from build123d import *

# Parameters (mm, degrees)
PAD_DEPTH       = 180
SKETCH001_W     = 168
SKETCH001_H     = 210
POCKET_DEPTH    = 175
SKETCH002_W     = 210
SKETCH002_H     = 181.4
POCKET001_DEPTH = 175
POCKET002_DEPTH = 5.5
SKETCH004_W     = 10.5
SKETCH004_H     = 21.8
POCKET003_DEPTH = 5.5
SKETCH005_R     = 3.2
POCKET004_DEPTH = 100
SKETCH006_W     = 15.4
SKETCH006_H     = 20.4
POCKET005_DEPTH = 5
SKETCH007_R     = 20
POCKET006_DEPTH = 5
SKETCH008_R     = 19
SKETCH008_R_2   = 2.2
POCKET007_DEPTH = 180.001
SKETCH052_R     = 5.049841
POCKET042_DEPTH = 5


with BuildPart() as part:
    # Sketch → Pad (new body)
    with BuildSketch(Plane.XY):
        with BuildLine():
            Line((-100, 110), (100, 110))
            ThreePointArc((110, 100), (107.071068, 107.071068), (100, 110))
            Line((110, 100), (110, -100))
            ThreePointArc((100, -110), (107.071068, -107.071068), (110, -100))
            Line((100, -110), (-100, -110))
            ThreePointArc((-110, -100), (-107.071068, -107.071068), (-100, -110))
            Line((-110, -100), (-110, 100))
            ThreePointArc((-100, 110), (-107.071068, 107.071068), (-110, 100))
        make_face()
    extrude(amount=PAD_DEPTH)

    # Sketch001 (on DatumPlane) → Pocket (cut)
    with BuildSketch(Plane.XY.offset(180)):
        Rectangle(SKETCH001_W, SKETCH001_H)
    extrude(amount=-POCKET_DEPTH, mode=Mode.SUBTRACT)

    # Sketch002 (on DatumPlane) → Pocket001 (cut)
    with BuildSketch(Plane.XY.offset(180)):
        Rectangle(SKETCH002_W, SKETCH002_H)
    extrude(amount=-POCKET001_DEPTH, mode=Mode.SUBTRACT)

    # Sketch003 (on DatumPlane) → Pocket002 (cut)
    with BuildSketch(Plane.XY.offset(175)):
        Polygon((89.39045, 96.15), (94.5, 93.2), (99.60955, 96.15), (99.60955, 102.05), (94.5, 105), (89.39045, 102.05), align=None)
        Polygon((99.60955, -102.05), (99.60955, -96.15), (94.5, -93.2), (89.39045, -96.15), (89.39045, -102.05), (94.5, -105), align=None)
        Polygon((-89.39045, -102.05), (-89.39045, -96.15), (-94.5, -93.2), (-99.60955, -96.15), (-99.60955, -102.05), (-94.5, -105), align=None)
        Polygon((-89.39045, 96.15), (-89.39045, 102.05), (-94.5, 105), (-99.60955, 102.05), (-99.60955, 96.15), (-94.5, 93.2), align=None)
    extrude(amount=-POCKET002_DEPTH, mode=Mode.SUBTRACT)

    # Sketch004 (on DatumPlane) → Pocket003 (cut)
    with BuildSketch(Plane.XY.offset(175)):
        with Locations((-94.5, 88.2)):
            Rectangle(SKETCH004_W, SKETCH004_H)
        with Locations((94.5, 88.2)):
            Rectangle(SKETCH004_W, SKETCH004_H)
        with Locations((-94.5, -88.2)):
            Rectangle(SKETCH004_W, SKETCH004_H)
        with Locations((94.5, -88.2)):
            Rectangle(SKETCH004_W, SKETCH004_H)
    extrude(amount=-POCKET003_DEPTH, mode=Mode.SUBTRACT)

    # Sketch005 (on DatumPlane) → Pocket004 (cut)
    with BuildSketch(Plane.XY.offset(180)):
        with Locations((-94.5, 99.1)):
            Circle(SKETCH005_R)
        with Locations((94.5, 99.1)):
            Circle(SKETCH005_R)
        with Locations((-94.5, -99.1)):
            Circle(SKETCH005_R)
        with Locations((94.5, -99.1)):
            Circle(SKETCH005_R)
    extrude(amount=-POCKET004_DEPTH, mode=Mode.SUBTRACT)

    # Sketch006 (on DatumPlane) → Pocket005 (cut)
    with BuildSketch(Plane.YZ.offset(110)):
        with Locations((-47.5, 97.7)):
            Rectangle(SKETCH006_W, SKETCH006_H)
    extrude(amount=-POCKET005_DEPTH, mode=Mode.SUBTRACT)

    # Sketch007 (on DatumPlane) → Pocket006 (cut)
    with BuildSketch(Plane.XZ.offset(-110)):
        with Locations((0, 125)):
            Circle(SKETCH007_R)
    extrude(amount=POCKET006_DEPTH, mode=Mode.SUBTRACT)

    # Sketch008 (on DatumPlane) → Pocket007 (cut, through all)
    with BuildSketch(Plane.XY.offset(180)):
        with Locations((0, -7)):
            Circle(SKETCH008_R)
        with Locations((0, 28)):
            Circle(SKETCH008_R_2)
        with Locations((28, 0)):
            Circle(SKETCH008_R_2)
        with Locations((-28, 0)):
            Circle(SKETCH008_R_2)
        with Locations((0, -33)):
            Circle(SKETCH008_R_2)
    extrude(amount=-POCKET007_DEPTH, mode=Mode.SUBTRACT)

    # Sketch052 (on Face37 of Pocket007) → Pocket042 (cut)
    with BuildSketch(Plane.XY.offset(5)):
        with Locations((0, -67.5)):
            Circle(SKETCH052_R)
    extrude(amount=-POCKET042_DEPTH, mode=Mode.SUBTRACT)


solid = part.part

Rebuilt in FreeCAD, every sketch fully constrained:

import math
import FreeCAD as App
import Part
import Sketcher
from FreeCAD import Vector
Q = App.Units.Quantity


def add_polygon(sketch, points):
    """Adds a closed chain of lines whose ends are joined by coincident constraints."""
    first, n = sketch.GeometryCount, len(points)
    for a, b in zip(points, points[1:] + points[:1]):
        sketch.addGeometry(Part.LineSegment(App.Vector(*a, 0), App.Vector(*b, 0)), False)
    for i in range(n):
        sketch.addConstraint(Sketcher.Constraint("Coincident", first + i, 2, first + (i + 1) % n, 1))

doc = App.newDocument("Part")
body = doc.addObject("PartDesign::Body", "Body")

# Sketch on XY plane
sketch1 = doc.addObject("Sketcher::SketchObject", "Sketch")
body.addObject(sketch1)
sketch1.AttachmentSupport = (doc.XY_Plane, [""])
sketch1.MapMode = "FlatFace"
sketch1.addGeometry([
    Part.LineSegment(Vector(100, 110, 0), Vector(-100, 110, 0)),  # 0
    Part.ArcOfCircle(Part.Circle(Vector(-100, 100, 0), Vector(0, 0, 1), 10), math.radians(90), math.radians(180)),  # 1
    Part.LineSegment(Vector(-110, 100, 0), Vector(-110, -100, 0)),  # 2
    Part.ArcOfCircle(Part.Circle(Vector(-100, -100, 0), Vector(0, 0, 1), 10), math.radians(180), math.radians(270)),  # 3
    Part.LineSegment(Vector(-100, -110, 0), Vector(100, -110, 0)),  # 4
    Part.ArcOfCircle(Part.Circle(Vector(100, -100, 0), Vector(0, 0, 1), 10), math.radians(-90), math.radians(0)),  # 5
    Part.LineSegment(Vector(110, -100, 0), Vector(110, 100, 0)),  # 6
    Part.ArcOfCircle(Part.Circle(Vector(100, 100, 0), Vector(0, 0, 1), 10), math.radians(0), math.radians(90)),  # 7
], False)
sketch1.addConstraint([
    Sketcher.Constraint("Tangent", 0, 2, 1, 1),
    Sketcher.Constraint("Tangent", 1, 2, 2, 1),
    Sketcher.Constraint("Tangent", 2, 2, 3, 1),
    Sketcher.Constraint("Tangent", 3, 2, 4, 1),
    Sketcher.Constraint("Tangent", 4, 2, 5, 1),
    Sketcher.Constraint("Tangent", 5, 2, 6, 1),
    Sketcher.Constraint("Tangent", 6, 2, 7, 1),
    Sketcher.Constraint("Tangent", 7, 2, 0, 1),
    Sketcher.Constraint("Horizontal", 0),
    Sketcher.Constraint("Vertical", 2),
    Sketcher.Constraint("Horizontal", 4),
    Sketcher.Constraint("Vertical", 6),
    Sketcher.Constraint("Equal", 1, 3),
    Sketcher.Constraint("Equal", 3, 5),
    Sketcher.Constraint("Equal", 5, 7),
    Sketcher.Constraint("Symmetric", 1, 3, 5, 3, -1, 1),
    Sketcher.Constraint("Equal", 4, 2),
    Sketcher.Constraint("Radius", 1, 9.999999),
    Sketcher.Constraint("DistanceX", 0, 2, 0, 1, 200.0),
])
pad1 = doc.addObject("PartDesign::Pad", "Pad")
body.addObject(pad1)
pad1.Profile = sketch1
pad1.Length = 180

# Sketch on XY plane
sketch2 = doc.addObject("Sketcher::SketchObject", "Sketch001")
body.addObject(sketch2)
sketch2.AttachmentSupport = (doc.XY_Plane, [""])
sketch2.MapMode = "FlatFace"
sketch2.AttachmentOffset = App.Placement(Vector(0, 0, 180), App.Rotation())
add_polygon(sketch2, [(-84, 105), (-84, -105), (84, -105), (84, 105)])  # lines 0-3
sketch2.addConstraint([
    Sketcher.Constraint("Vertical", 0),
    Sketcher.Constraint("Horizontal", 1),
    Sketcher.Constraint("Vertical", 2),
    Sketcher.Constraint("Horizontal", 3),
    Sketcher.Constraint("Symmetric", 0, 2, 2, 2, -1, 1),
    Sketcher.Constraint("DistanceX", 1, 1, 1, 2, 168.0),
    Sketcher.Constraint("DistanceY", 0, 2, 0, 1, 210.0),
])
pocket1 = doc.addObject("PartDesign::Pocket", "Pocket")
body.addObject(pocket1)
pocket1.Profile = sketch2
pocket1.Length = 175

# Sketch on XY plane
sketch3 = doc.addObject("Sketcher::SketchObject", "Sketch002")
body.addObject(sketch3)
sketch3.AttachmentSupport = (doc.XY_Plane, [""])
sketch3.MapMode = "FlatFace"
sketch3.AttachmentOffset = App.Placement(Vector(0, 0, 180), App.Rotation())
add_polygon(sketch3, [(-105, 91), (-105, -91), (105, -91), (105, 91)])  # lines 0-3
sketch3.addConstraint([
    Sketcher.Constraint("Vertical", 0),
    Sketcher.Constraint("Horizontal", 1),
    Sketcher.Constraint("Vertical", 2),
    Sketcher.Constraint("Horizontal", 3),
    Sketcher.Constraint("Symmetric", 0, 2, 2, 2, -1, 1),
    Sketcher.Constraint("DistanceX", 1, 1, 1, 2, 210.0),
    Sketcher.Constraint("DistanceY", 0, 2, 0, 1, 181.4),
])
pocket2 = doc.addObject("PartDesign::Pocket", "Pocket001")
body.addObject(pocket2)
pocket2.Profile = sketch3
pocket2.Length = 175

# Sketch on XY plane
sketch4 = doc.addObject("Sketcher::SketchObject", "Sketch003")
body.addObject(sketch4)
sketch4.AttachmentSupport = (doc.XY_Plane, [""])
sketch4.MapMode = "FlatFace"
sketch4.AttachmentOffset = App.Placement(Vector(0, 0, 175), App.Rotation())
add_polygon(sketch4, [(89, 96), (94, 93), (100, 96), (100, 102), (94, 105), (89, 102)])  # lines 0-5
add_polygon(sketch4, [(100, -102), (100, -96), (94, -93), (89, -96), (89, -102), (94, -105)])  # lines 6-11
add_polygon(sketch4, [(-89, -102), (-89, -96), (-94, -93), (-100, -96), (-100, -102), (-94, -105)])  # lines 12-17
add_polygon(sketch4, [(-89, 96), (-89, 102), (-94, 105), (-100, 102), (-100, 96), (-94, 93)])  # lines 18-23
sketch4.addConstraint([
    Sketcher.Constraint("Vertical", 2),
    Sketcher.Constraint("Vertical", 5),
    Sketcher.Constraint("Vertical", 6),
    Sketcher.Constraint("Vertical", 9),
    Sketcher.Constraint("Vertical", 12),
    Sketcher.Constraint("Vertical", 15),
    Sketcher.Constraint("Vertical", 18),
    Sketcher.Constraint("Vertical", 21),
    Sketcher.Constraint("Symmetric", 5, 2, 12, 2, -1, 1),
    Sketcher.Constraint("Symmetric", 0, 2, 13, 2, -1, 1),
    Sketcher.Constraint("Symmetric", 1, 2, 14, 2, -1, 1),
    Sketcher.Constraint("Symmetric", 3, 2, 16, 2, -1, 1),
    Sketcher.Constraint("Symmetric", 9, 2, 18, 2, -1, 1),
    Sketcher.Constraint("Symmetric", 10, 2, 19, 2, -1, 1),
    Sketcher.Constraint("Symmetric", 11, 2, 20, 2, -1, 1),
    Sketcher.Constraint("Symmetric", 7, 2, 22, 2, -1, 1),
    Sketcher.Constraint("Symmetric", 8, 2, 12, 2, -2),
    Sketcher.Constraint("Symmetric", 7, 2, 13, 2, -2),
    Sketcher.Constraint("Symmetric", 6, 2, 14, 2, -2),
    Sketcher.Constraint("Symmetric", 10, 2, 16, 2, -2),
    Sketcher.Constraint("Parallel", 0, 3),
    Sketcher.Constraint("Parallel", 1, 4),
    Sketcher.Constraint("Parallel", 3, 7),
    Sketcher.Constraint("Parallel", 7, 10),
    Sketcher.Constraint("Parallel", 8, 11),
    Sketcher.Constraint("Parallel", 13, 16),
    Sketcher.Constraint("Parallel", 14, 17),
    Sketcher.Constraint("Parallel", 19, 22),
    Sketcher.Constraint("Parallel", 20, 23),
    Sketcher.Constraint("Horizontal", 2, 2, 4, 2),
    Sketcher.Constraint("Horizontal", 1, 2, 5, 2),
    Sketcher.Constraint("Angle", 0, Q("-29.999999 deg")),
    Sketcher.Constraint("DistanceY", 2, 1, 2, 2, 5.9),
    Sketcher.Constraint("DistanceY", -1, 1, 3, 2, 105.0),
    Sketcher.Constraint("DistanceX", 12, 2, 6, 2, 189.0),
    Sketcher.Constraint("Distance", 0, 5.9),
])
pocket3 = doc.addObject("PartDesign::Pocket", "Pocket002")
body.addObject(pocket3)
pocket3.Profile = sketch4
pocket3.Length = 5.5

# Sketch on XY plane
sketch5 = doc.addObject("Sketcher::SketchObject", "Sketch004")
body.addObject(sketch5)
sketch5.AttachmentSupport = (doc.XY_Plane, [""])
sketch5.MapMode = "FlatFace"
sketch5.AttachmentOffset = App.Placement(Vector(0, 0, 175), App.Rotation())
add_polygon(sketch5, [(-100, 99), (-100, 77), (-89, 77), (-89, 99)])  # lines 0-3
add_polygon(sketch5, [(89, 99), (89, 77), (100, 77), (100, 99)])  # lines 4-7
add_polygon(sketch5, [(-100, -77), (-100, -99), (-89, -99), (-89, -77)])  # lines 8-11
add_polygon(sketch5, [(89, -77), (89, -99), (100, -99), (100, -77)])  # lines 12-15
sketch5.addConstraint([
    Sketcher.Constraint("Vertical", 0),
    Sketcher.Constraint("Horizontal", 1),
    Sketcher.Constraint("Vertical", 2),
    Sketcher.Constraint("Horizontal", 3),
    Sketcher.Constraint("Vertical", 4),
    Sketcher.Constraint("Horizontal", 5),
    Sketcher.Constraint("Vertical", 6),
    Sketcher.Constraint("Horizontal", 7),
    Sketcher.Constraint("Vertical", 8),
    Sketcher.Constraint("Horizontal", 9),
    Sketcher.Constraint("Vertical", 10),
    Sketcher.Constraint("Horizontal", 11),
    Sketcher.Constraint("Vertical", 12),
    Sketcher.Constraint("Horizontal", 13),
    Sketcher.Constraint("Vertical", 14),
    Sketcher.Constraint("Horizontal", 15),
    Sketcher.Constraint("Symmetric", 6, 2, 8, 2, -1, 1),
    Sketcher.Constraint("Symmetric", 4, 2, 10, 2, -1, 1),
    Sketcher.Constraint("Symmetric", 2, 2, 12, 2, -1, 1),
    Sketcher.Constraint("Symmetric", 0, 2, 14, 2, -1, 1),
    Sketcher.Constraint("Symmetric", 1, 2, 4, 2, -2),
    Sketcher.Constraint("Symmetric", 3, 2, 6, 2, -2),
    Sketcher.Constraint("DistanceX", 1, 1, 1, 2, 10.5),
    Sketcher.Constraint("DistanceY", 0, 2, 0, 1, 21.8),
    Sketcher.Constraint("DistanceX", 0, 2, 4, 2, 189.0),
    Sketcher.Constraint("DistanceY", -1, 1, 0, 2, 77.3),
])
pocket4 = doc.addObject("PartDesign::Pocket", "Pocket003")
body.addObject(pocket4)
pocket4.Profile = sketch5
pocket4.Length = 5.5

# Sketch on XY plane
sketch6 = doc.addObject("Sketcher::SketchObject", "Sketch005")
body.addObject(sketch6)
sketch6.AttachmentSupport = (doc.XY_Plane, [""])
sketch6.MapMode = "FlatFace"
sketch6.AttachmentOffset = App.Placement(Vector(0, 0, 180), App.Rotation())
sketch6.addGeometry([
    Part.Circle(Vector(-94.5, 99.1, 0), Vector(0, 0, 1), 3.2),
    Part.Circle(Vector(94.5, 99.1, 0), Vector(0, 0, 1), 3.2),
    Part.Circle(Vector(-94.5, -99.1, 0), Vector(0, 0, 1), 3.2),
    Part.Circle(Vector(94.5, -99.1, 0), Vector(0, 0, 1), 3.2),
], False)
sketch6.addConstraint([
    Sketcher.Constraint("Equal", 0, 1),
    Sketcher.Constraint("Equal", 1, 2),
    Sketcher.Constraint("Equal", 2, 3),
    Sketcher.Constraint("Symmetric", 1, 3, 2, 3, -1, 1),
    Sketcher.Constraint("Symmetric", 0, 3, 3, 3, -1, 1),
    Sketcher.Constraint("Symmetric", 0, 3, 1, 3, -2),
    Sketcher.Constraint("Diameter", 0, 6.4),
    Sketcher.Constraint("DistanceX", 0, 3, 1, 3, 189.0),
    Sketcher.Constraint("DistanceY", -1, 1, 0, 3, 99.1),
])
pocket5 = doc.addObject("PartDesign::Pocket", "Pocket004")
body.addObject(pocket5)
pocket5.Profile = sketch6
pocket5.Length = 100

# Sketch on YZ plane
sketch7 = doc.addObject("Sketcher::SketchObject", "Sketch006")
body.addObject(sketch7)
sketch7.AttachmentSupport = (doc.YZ_Plane, [""])
sketch7.MapMode = "FlatFace"
sketch7.AttachmentOffset = App.Placement(Vector(0, 0, 110), App.Rotation())
add_polygon(sketch7, [(-55, 108), (-55, 88), (-40, 88), (-40, 108)])  # lines 0-3
sketch7.addConstraint([
    Sketcher.Constraint("Vertical", 0),
    Sketcher.Constraint("Horizontal", 1),
    Sketcher.Constraint("Vertical", 2),
    Sketcher.Constraint("Horizontal", 3),
    Sketcher.Constraint("DistanceX", 1, 1, 1, 2, 15.4),
    Sketcher.Constraint("DistanceY", 0, 2, 0, 1, 20.4),
    Sketcher.Constraint("DistanceX", 0, 2, -1, 1, 55.2),
    Sketcher.Constraint("DistanceY", -1, 1, 0, 2, 87.5),
])
pocket6 = doc.addObject("PartDesign::Pocket", "Pocket005")
body.addObject(pocket6)
pocket6.Profile = sketch7
pocket6.Length = 5

# Sketch on XZ plane
sketch8 = doc.addObject("Sketcher::SketchObject", "Sketch007")
body.addObject(sketch8)
sketch8.AttachmentSupport = (doc.XZ_Plane, [""])
sketch8.MapMode = "FlatFace"
sketch8.AttachmentOffset = App.Placement(Vector(0, 0, -110), App.Rotation())
sketch8.addGeometry(Part.Circle(Vector(0, 125, 0), Vector(0, 0, 1), 20), False)
sketch8.addConstraint([
    Sketcher.Constraint("PointOnObject", 0, 3, -2),
    Sketcher.Constraint("Diameter", 0, 40.0),
    Sketcher.Constraint("DistanceY", -1, 1, 0, 3, 125.0),
])
pocket7 = doc.addObject("PartDesign::Pocket", "Pocket006")
body.addObject(pocket7)
pocket7.Profile = sketch8
pocket7.Length = 5
pocket7.Reversed = True

# Sketch on XY plane
sketch9 = doc.addObject("Sketcher::SketchObject", "Sketch008")
body.addObject(sketch9)
sketch9.AttachmentSupport = (doc.XY_Plane, [""])
sketch9.MapMode = "FlatFace"
sketch9.AttachmentOffset = App.Placement(Vector(0, 0, 180), App.Rotation())
sketch9.addGeometry([
    Part.Circle(Vector(0, -7, 0), Vector(0, 0, 1), 19),  # 0
    Part.Circle(Vector(0, 28, 0), Vector(0, 0, 1), 2.2),  # 1
    Part.Circle(Vector(28, 0, 0), Vector(0, 0, 1), 2.2),  # 2
    Part.Circle(Vector(-28, 0, 0), Vector(0, 0, 1), 2.2),  # 3
    Part.Circle(Vector(0, -33, 0), Vector(0, 0, 1), 2.2),  # 4
], False)
sketch9.addConstraint([
    Sketcher.Constraint("Equal", 1, 2),
    Sketcher.Constraint("Equal", 2, 3),
    Sketcher.Constraint("Equal", 3, 4),
    Sketcher.Constraint("Symmetric", 2, 3, 3, 3, -1, 1),
    Sketcher.Constraint("PointOnObject", 0, 3, -2),
    Sketcher.Constraint("PointOnObject", 1, 3, -2),
    Sketcher.Constraint("PointOnObject", 2, 3, -1),
    Sketcher.Constraint("PointOnObject", 4, 3, -2),
    Sketcher.Constraint("Diameter", 0, 38.0),
    Sketcher.Constraint("Diameter", 1, 4.4),
    Sketcher.Constraint("DistanceY", 0, 3, -1, 1, 7.0),
    Sketcher.Constraint("DistanceY", -1, 1, 1, 3, 28.0),
    Sketcher.Constraint("DistanceX", -1, 1, 2, 3, 28.0),
    Sketcher.Constraint("DistanceY", 4, 3, -1, 1, 33.0),
])
pocket8 = doc.addObject("PartDesign::Pocket", "Pocket007")
body.addObject(pocket8)
pocket8.Profile = sketch9
pocket8.Type = "ThroughAll"

# Sketch on XY plane
sketch10 = doc.addObject("Sketcher::SketchObject", "Sketch009")
body.addObject(sketch10)
sketch10.AttachmentSupport = (doc.XY_Plane, [""])
sketch10.MapMode = "FlatFace"
sketch10.AttachmentOffset = App.Placement(Vector(0, 0, 5), App.Rotation())
sketch10.addGeometry(Part.Circle(Vector(0, -68, 0), Vector(0, 0, 1), 5), False)
sketch10.addConstraint([
    Sketcher.Constraint("PointOnObject", 0, 3, -2),
    Sketcher.Constraint("DistanceY", 0, 3, -1, 1, 67.5),
    Sketcher.Constraint("Diameter", 0, 10.099682),
])
pocket9 = doc.addObject("PartDesign::Pocket", "Pocket008")
body.addObject(pocket9)
pocket9.Profile = sketch10
pocket9.Length = 5

doc.recompute()
